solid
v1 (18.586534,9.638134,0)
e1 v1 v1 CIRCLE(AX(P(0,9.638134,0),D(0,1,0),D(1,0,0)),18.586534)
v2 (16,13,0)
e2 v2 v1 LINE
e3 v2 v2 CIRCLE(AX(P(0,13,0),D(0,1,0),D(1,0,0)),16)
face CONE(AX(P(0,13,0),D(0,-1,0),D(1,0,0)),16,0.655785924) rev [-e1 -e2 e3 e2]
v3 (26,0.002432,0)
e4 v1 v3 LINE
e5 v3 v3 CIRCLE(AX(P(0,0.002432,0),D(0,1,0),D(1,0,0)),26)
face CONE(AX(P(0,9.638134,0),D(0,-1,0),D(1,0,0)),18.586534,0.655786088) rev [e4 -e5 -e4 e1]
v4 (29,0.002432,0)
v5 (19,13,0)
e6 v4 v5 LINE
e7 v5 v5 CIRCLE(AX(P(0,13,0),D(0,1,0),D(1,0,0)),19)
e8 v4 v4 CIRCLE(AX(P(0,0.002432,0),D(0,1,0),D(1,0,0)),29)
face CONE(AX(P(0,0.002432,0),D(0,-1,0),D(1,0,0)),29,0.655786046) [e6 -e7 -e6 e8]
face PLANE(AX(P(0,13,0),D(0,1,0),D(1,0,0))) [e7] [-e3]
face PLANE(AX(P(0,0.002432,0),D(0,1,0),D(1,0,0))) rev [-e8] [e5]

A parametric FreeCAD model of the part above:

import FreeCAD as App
import Part
import Sketcher
from FreeCAD import Vector

doc = App.newDocument("Part")
body = doc.addObject("PartDesign::Body", "Body")

sketch1 = body.newObject("Sketcher::SketchObject", "Sketch")
sketch1.AttachmentSupport = (doc.getObject("XY_Plane"), [""])
sketch1.MapMode = "FlatFace"
sketch1.addGeometry([
    Part.LineSegment(Vector(26, 0.002432, 0), Vector(29, 0.002432, 0)),
    Part.LineSegment(Vector(29, 0.002432, 0), Vector(19, 13, 0)),
    Part.LineSegment(Vector(19, 13, 0), Vector(16, 13, 0)),
    Part.LineSegment(Vector(16, 13, 0), Vector(18.586534, 9.638134, 0)),
    Part.LineSegment(Vector(18.586534, 9.638134, 0), Vector(26, 0.002432, 0)),
], False)
sketch1.addConstraint([
    Sketcher.Constraint("Coincident", 0, 2, 1, 1),
    Sketcher.Constraint("Coincident", 1, 2, 2, 1),
    Sketcher.Constraint("Coincident", 2, 2, 3, 1),
    Sketcher.Constraint("Coincident", 3, 2, 4, 1),
    Sketcher.Constraint("Coincident", 4, 2, 0, 1),
    Sketcher.Constraint("Horizontal", 0),
    Sketcher.Constraint("Horizontal", 2),
    Sketcher.Constraint("Parallel", 1, 3),
    Sketcher.Constraint("Parallel", 3, 4),
    Sketcher.Constraint("DistanceX", 0, 1, 0, 2, 3.0),
    Sketcher.Constraint("DistanceX", -1, 1, 0, 2, 29.0),
    Sketcher.Constraint("DistanceX", -1, 1, 1, 2, 19.0),
    Sketcher.Constraint("DistanceY", -1, 1, 1, 2, 13.0),
    Sketcher.Constraint("Distance", 1, 16.399292),
    Sketcher.Constraint("Distance", 4, 12.157559),
])
revolution = body.newObject("PartDesign::Revolution", "Revolution")
revolution.Profile = sketch1
revolution.ReferenceAxis = (sketch1, ["V_Axis"])
revolution.Angle = 360

doc.recompute()
